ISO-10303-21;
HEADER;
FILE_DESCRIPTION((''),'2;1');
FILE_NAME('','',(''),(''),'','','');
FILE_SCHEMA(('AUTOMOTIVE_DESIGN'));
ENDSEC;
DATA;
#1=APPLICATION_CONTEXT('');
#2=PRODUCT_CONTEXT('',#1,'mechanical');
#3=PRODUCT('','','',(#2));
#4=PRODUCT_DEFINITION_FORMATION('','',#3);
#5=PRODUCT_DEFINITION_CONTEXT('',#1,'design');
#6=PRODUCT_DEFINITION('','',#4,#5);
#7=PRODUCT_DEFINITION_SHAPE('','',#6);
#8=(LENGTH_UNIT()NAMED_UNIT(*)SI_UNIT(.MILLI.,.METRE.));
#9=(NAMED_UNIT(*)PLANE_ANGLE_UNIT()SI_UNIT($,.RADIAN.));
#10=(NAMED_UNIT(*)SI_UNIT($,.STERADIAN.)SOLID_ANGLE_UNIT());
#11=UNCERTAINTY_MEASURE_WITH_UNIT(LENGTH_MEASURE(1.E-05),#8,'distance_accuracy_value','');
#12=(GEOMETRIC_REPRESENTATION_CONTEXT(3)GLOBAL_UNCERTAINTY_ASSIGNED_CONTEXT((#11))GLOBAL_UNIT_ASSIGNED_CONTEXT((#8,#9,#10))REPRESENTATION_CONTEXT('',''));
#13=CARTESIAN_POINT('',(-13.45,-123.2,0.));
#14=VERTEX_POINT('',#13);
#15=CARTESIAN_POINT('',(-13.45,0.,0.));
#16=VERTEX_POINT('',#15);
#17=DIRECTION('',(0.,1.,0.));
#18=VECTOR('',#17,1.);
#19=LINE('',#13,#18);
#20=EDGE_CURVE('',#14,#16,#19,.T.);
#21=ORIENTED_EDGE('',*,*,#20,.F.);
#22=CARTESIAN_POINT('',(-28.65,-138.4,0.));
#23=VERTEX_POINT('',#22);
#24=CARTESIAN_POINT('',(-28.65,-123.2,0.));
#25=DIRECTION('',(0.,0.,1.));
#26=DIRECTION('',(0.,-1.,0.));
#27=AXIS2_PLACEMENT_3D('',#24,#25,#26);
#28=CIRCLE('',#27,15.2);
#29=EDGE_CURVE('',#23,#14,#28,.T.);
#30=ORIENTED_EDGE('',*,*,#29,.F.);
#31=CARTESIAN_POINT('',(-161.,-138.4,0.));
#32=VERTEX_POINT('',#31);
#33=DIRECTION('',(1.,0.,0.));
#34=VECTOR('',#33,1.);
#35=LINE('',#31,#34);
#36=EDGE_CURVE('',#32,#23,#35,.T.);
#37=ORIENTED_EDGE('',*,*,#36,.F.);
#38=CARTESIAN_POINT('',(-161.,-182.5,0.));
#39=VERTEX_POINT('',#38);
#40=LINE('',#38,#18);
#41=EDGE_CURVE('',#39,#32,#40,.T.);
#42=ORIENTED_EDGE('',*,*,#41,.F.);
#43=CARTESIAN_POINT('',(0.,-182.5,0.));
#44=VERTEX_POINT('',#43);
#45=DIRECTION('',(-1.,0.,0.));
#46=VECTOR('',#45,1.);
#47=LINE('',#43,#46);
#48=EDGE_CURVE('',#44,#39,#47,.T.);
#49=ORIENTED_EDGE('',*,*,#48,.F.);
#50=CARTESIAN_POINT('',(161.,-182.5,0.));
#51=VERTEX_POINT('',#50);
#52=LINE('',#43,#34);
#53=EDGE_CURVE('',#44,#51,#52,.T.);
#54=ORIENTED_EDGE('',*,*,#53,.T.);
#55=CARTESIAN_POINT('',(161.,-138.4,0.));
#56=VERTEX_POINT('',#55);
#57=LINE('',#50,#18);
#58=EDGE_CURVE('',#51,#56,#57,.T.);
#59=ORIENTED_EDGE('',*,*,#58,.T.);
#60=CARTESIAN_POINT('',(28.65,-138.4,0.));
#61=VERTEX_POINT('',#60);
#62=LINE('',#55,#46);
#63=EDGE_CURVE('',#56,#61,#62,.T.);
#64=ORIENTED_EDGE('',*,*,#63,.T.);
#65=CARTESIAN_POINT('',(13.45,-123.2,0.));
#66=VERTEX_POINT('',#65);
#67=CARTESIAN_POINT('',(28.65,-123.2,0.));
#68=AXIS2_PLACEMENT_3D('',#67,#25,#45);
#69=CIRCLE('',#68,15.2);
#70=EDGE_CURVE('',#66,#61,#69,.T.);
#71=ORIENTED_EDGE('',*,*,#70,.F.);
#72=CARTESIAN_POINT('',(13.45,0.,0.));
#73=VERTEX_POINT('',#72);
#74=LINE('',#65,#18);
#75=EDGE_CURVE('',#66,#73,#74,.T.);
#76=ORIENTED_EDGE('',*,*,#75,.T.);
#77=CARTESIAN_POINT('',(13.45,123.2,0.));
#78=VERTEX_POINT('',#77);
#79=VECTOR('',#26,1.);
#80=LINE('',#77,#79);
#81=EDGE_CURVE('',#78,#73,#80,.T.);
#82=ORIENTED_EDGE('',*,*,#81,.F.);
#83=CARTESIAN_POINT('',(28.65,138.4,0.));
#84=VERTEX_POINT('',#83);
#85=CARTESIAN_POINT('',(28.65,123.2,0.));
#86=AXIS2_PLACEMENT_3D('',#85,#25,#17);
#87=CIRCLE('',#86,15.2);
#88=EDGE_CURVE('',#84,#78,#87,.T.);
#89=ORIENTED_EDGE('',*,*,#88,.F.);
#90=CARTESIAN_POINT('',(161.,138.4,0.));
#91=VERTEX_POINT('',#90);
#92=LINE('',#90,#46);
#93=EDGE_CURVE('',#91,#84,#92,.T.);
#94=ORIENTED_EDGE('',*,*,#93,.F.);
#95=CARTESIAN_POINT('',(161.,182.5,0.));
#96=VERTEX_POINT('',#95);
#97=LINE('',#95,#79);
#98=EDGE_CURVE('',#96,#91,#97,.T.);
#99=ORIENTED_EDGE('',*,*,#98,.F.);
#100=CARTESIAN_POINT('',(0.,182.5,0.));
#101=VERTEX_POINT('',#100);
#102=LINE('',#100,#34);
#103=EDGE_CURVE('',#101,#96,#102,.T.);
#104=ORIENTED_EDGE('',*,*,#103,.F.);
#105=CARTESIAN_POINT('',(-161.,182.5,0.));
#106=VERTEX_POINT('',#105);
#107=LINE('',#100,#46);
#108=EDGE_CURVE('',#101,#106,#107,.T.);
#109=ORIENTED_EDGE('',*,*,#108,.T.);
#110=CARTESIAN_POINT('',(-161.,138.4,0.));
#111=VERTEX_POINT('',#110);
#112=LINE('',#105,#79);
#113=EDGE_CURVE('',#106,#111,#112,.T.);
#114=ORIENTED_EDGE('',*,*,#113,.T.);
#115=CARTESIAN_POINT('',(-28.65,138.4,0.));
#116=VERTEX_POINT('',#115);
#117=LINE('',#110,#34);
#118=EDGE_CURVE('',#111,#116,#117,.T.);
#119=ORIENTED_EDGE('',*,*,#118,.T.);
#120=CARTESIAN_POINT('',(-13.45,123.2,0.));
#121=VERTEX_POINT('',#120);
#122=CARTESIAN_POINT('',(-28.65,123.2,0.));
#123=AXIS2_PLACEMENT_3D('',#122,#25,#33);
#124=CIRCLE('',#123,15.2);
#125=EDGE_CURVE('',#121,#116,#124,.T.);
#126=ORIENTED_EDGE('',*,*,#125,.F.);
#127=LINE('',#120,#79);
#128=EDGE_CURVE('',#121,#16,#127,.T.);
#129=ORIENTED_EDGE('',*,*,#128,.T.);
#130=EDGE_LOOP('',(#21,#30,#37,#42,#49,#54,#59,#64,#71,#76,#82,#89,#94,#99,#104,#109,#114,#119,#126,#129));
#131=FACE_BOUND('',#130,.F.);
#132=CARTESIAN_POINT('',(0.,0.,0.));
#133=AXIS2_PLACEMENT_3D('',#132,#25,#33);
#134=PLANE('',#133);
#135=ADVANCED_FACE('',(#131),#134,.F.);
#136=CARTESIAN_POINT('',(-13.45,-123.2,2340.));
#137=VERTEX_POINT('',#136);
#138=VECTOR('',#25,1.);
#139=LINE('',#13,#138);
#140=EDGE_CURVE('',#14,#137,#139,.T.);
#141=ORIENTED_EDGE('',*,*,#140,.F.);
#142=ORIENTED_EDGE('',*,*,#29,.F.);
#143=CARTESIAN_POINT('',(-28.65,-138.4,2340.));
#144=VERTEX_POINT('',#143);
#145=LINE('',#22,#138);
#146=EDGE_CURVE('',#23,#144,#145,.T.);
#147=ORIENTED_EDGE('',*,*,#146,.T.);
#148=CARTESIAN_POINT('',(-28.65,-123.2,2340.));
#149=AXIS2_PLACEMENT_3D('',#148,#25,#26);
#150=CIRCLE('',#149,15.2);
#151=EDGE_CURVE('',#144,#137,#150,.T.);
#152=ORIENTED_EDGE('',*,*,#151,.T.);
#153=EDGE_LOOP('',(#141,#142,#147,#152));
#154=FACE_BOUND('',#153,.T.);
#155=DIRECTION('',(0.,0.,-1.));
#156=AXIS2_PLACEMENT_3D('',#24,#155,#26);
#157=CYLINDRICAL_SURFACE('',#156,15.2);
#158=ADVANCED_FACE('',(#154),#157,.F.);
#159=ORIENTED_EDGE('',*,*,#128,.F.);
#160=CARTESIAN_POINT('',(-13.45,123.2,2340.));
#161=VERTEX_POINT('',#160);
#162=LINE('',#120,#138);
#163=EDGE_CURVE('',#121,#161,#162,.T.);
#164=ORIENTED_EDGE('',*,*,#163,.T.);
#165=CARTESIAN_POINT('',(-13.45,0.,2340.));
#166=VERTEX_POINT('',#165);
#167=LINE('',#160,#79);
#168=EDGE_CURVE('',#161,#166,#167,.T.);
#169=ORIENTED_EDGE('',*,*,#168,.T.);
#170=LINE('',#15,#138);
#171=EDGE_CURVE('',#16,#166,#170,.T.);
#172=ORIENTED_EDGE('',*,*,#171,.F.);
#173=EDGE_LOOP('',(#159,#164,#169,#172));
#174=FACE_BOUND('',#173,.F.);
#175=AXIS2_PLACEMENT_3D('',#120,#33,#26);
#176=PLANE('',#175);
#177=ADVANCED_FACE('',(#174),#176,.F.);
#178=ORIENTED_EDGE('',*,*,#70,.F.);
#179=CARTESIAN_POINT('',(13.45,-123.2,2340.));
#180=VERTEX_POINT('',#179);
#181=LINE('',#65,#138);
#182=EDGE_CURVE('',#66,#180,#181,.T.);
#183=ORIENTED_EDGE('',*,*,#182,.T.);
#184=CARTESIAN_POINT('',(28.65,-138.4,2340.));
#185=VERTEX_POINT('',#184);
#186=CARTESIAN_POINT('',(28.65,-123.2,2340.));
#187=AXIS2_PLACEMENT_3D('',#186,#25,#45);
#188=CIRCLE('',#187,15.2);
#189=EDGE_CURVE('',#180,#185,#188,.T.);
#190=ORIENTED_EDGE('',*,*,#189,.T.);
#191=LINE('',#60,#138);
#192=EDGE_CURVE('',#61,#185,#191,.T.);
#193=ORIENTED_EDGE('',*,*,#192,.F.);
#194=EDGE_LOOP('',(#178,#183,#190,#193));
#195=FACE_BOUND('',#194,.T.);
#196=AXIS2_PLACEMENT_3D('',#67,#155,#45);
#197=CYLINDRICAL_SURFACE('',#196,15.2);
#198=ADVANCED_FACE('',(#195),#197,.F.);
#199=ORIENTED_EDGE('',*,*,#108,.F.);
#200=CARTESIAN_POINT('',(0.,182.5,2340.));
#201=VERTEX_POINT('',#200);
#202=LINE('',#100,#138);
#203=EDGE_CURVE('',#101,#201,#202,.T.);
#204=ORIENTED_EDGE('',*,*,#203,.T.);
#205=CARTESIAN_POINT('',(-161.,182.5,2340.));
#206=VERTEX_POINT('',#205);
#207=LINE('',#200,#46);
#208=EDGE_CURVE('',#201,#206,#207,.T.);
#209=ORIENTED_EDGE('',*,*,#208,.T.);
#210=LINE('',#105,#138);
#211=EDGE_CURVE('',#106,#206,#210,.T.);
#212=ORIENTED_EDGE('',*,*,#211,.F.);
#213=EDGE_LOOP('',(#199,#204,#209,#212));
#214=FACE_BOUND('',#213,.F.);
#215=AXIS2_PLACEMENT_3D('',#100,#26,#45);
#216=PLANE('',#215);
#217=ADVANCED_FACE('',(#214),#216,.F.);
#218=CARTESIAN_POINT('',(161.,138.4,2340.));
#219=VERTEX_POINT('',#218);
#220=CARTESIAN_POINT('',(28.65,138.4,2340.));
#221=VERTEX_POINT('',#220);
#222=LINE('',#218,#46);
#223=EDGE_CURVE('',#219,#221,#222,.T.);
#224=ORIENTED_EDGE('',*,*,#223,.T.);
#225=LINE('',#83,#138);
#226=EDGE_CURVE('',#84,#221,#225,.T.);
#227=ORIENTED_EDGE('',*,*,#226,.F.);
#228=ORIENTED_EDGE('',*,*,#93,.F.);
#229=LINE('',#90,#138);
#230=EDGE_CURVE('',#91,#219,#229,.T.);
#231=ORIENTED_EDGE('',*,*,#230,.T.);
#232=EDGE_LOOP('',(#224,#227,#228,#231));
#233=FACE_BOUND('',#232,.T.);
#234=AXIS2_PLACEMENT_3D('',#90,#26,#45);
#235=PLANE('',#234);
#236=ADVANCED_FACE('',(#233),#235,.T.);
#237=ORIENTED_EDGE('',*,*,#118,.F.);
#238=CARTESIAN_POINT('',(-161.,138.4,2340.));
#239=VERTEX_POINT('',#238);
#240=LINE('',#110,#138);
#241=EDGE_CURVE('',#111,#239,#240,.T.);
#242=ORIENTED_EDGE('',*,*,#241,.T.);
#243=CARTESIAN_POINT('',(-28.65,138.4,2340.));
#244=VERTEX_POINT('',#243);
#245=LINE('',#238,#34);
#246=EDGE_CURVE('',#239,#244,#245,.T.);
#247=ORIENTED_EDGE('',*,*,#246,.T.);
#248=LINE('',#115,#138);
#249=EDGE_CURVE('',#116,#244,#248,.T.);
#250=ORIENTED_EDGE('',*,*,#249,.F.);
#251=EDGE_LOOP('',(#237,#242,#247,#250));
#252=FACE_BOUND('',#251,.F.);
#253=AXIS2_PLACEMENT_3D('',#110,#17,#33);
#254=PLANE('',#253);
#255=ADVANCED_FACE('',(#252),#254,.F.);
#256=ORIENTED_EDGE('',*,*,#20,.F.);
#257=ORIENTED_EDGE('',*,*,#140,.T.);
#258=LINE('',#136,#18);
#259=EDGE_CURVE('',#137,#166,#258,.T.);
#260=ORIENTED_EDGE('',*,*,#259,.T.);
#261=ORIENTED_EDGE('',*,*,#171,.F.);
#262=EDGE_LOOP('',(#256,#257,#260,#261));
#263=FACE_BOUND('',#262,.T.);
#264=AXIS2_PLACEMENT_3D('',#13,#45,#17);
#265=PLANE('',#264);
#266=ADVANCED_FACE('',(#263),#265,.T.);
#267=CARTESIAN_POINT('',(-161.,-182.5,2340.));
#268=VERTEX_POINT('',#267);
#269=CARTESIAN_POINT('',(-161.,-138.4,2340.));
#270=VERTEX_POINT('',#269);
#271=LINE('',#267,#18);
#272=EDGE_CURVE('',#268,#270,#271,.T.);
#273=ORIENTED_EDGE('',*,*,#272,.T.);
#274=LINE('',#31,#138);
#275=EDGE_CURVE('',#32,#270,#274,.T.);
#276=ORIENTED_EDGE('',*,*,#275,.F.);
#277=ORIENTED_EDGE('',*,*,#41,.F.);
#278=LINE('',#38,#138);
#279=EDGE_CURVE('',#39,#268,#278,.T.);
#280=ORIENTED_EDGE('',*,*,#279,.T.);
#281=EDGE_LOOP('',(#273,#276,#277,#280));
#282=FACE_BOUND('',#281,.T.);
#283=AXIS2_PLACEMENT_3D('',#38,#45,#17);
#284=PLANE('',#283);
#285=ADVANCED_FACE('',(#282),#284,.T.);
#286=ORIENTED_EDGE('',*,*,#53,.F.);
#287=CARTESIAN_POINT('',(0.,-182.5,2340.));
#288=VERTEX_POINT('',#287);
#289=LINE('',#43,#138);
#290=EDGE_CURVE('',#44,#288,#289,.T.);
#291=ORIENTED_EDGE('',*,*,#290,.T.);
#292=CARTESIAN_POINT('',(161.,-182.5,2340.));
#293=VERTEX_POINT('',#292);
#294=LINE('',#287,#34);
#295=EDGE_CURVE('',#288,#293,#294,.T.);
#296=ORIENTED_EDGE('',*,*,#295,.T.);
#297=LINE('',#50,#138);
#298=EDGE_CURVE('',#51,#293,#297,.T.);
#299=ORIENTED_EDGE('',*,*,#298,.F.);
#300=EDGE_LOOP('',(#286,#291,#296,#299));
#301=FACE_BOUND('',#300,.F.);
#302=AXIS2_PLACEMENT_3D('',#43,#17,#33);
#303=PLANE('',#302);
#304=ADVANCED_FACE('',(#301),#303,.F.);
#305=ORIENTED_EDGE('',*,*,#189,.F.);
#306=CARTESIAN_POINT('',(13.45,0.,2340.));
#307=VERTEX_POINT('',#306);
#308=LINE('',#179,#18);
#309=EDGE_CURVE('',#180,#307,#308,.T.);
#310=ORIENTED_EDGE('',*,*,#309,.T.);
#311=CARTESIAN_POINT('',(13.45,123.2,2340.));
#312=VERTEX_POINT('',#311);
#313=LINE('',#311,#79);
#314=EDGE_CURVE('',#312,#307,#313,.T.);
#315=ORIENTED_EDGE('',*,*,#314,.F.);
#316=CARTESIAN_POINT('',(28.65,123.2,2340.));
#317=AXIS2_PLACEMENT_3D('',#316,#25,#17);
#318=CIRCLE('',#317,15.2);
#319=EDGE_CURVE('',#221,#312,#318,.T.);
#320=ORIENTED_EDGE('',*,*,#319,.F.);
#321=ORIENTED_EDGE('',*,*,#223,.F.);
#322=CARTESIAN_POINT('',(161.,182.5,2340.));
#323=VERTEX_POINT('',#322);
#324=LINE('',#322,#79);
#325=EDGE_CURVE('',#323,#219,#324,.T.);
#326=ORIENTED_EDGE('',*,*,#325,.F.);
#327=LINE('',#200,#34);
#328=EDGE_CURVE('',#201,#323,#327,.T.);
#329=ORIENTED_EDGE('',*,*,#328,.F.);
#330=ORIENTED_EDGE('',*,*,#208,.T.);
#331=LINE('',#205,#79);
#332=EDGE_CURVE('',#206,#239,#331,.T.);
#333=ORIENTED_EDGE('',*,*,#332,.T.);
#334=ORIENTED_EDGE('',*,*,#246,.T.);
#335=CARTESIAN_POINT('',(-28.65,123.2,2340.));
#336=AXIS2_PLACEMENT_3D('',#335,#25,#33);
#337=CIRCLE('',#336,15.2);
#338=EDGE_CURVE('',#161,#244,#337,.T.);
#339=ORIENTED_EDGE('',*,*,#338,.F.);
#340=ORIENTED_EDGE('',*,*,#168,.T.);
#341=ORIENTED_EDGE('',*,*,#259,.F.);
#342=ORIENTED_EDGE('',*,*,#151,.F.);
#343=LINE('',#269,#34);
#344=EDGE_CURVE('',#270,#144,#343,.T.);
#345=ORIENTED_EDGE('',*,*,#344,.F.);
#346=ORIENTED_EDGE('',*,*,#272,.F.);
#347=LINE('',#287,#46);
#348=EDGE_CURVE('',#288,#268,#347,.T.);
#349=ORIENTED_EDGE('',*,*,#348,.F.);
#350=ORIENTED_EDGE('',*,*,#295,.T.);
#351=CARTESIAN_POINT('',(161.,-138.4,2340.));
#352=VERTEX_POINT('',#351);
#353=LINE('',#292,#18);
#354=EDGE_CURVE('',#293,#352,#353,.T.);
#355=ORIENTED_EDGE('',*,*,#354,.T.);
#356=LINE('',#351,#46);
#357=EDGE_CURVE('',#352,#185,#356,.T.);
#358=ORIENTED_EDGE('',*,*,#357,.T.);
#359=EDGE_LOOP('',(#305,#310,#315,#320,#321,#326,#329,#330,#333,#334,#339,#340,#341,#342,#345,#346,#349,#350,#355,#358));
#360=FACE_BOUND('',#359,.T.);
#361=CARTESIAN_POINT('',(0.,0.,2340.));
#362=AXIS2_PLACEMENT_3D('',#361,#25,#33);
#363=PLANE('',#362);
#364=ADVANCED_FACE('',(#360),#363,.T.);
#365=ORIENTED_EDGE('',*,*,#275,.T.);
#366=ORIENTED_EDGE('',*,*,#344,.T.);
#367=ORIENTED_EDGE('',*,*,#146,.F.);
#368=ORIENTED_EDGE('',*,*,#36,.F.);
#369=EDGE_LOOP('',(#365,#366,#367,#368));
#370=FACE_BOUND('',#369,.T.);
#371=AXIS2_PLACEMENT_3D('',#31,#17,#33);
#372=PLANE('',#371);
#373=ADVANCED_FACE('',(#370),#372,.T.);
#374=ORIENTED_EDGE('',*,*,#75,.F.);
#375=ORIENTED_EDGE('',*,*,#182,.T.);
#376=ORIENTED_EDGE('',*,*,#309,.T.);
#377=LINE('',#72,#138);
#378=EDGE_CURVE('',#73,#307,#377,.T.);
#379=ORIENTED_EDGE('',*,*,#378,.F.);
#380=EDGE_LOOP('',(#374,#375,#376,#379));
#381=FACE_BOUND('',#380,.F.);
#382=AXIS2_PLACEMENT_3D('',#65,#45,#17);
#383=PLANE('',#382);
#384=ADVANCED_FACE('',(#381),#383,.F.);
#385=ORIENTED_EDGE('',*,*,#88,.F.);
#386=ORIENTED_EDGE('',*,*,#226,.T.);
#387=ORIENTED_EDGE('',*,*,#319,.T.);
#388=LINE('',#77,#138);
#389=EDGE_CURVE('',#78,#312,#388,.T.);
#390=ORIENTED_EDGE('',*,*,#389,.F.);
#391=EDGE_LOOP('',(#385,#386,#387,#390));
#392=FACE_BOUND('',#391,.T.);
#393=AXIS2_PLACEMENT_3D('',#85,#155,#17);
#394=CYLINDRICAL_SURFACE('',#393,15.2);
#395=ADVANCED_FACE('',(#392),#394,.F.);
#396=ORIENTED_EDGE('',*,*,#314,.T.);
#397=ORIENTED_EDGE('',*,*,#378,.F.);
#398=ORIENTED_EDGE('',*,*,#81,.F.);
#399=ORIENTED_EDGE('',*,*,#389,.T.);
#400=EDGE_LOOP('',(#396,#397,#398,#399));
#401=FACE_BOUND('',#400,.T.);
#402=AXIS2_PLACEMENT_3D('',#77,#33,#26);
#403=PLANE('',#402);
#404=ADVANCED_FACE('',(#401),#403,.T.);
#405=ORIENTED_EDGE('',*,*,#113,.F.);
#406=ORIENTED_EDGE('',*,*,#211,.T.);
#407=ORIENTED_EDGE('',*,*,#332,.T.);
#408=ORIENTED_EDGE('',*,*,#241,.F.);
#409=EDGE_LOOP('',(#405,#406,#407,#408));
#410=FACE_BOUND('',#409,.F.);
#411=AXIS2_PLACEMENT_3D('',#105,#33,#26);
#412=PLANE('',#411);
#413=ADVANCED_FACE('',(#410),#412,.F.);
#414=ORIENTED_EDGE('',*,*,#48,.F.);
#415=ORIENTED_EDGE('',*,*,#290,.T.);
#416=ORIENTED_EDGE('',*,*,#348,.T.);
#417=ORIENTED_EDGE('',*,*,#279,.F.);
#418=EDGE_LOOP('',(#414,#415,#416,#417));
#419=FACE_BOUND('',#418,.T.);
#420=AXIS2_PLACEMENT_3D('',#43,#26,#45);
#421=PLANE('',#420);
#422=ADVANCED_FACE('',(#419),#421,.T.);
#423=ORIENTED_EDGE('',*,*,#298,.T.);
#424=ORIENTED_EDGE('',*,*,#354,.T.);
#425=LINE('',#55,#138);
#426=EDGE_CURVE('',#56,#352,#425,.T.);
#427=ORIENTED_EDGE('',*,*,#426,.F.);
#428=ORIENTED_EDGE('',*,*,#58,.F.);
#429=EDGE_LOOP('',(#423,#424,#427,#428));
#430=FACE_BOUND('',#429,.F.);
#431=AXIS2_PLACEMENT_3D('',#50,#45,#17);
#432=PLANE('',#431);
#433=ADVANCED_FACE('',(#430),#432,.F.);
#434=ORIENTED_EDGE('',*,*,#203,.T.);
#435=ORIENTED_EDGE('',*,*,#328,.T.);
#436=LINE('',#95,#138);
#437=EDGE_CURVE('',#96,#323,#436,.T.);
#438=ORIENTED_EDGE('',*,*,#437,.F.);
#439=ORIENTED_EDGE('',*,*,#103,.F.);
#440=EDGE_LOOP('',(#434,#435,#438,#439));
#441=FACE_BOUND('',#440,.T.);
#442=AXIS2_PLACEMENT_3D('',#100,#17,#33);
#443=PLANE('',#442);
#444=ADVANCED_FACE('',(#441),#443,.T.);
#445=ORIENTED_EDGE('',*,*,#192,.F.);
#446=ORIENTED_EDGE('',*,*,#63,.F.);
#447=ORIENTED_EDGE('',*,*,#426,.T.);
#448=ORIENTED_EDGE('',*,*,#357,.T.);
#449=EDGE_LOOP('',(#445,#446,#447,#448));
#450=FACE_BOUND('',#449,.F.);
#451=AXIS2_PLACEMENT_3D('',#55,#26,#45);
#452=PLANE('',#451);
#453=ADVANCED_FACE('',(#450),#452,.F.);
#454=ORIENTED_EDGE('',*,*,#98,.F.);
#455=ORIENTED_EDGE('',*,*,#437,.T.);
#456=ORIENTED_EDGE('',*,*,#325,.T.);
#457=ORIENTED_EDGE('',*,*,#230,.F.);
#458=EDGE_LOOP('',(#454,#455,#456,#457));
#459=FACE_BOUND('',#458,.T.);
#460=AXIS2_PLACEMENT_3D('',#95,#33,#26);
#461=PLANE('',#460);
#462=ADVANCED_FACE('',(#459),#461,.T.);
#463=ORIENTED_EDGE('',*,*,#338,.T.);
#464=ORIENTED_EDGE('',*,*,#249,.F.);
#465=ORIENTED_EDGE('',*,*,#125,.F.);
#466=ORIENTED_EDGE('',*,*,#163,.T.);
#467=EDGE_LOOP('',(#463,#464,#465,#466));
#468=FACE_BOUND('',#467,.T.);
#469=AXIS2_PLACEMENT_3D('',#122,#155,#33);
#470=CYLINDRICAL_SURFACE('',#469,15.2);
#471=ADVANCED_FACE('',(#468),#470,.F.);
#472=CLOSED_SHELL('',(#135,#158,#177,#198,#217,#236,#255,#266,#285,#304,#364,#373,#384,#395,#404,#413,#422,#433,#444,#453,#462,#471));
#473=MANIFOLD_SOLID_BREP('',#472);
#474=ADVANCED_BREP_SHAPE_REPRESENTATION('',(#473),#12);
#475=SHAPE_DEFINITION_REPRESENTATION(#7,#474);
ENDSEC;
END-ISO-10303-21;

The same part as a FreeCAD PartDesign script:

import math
import FreeCAD as App
import Part
import Sketcher

V = App.Vector
Q = App.Units.Quantity

doc = App.newDocument("Part")
params = doc.addObject("Spreadsheet::Sheet", "Params")
for row, (alias, value) in enumerate([
    ("sketch1_radius", "15.2 mm"),
    ("sketch1_height", "44.1 mm"),
    ("pad1_length", "2340 mm"),
], start=1):
    params.set(f"A{row}", alias)
    params.set(f"B{row}", "=" + value)
    params.setAlias(f"B{row}", alias)

body = doc.addObject("PartDesign::Body", "Body")

# Sketch on XY plane
sketch1 = body.newObject("Sketcher::SketchObject", "Sketch")
sketch1.AttachmentSupport = (doc.getObject("XY_Plane"), [""])
sketch1.MapMode = "FlatFace"
sketch1.addGeometry([
    Part.LineSegment(V(-161, -138, 0), V(-161, -182, 0)),  # 0
    Part.LineSegment(V(-161, -182, 0), V(161, -182, 0)),  # 1
    Part.LineSegment(V(161, -182, 0), V(161, -138, 0)),  # 2
    Part.LineSegment(V(161, -138, 0), V(29, -138, 0)),  # 3
    Part.ArcOfCircle(Part.Circle(V(29, -123, 0), V(0, 0, 1), 15), math.radians(180), math.radians(270)),  # 4
    Part.LineSegment(V(13, -123, 0), V(13, 123, 0)),  # 5
    Part.ArcOfCircle(Part.Circle(V(29, 123, 0), V(0, 0, 1), 15), math.radians(90), math.radians(180)),  # 6
    Part.LineSegment(V(29, 138, 0), V(161, 138, 0)),  # 7
    Part.LineSegment(V(161, 138, 0), V(161, 182, 0)),  # 8
    Part.LineSegment(V(161, 182, 0), V(-161, 182, 0)),  # 9
    Part.LineSegment(V(-161, 182, 0), V(-161, 138, 0)),  # 10
    Part.LineSegment(V(-161, 138, 0), V(-29, 138, 0)),  # 11
    Part.ArcOfCircle(Part.Circle(V(-29, 123, 0), V(0, 0, 1), 15), math.radians(0), math.radians(90)),  # 12
    Part.LineSegment(V(-13, 123, 0), V(-13, -123, 0)),  # 13
    Part.ArcOfCircle(Part.Circle(V(-29, -123, 0), V(0, 0, 1), 15), math.radians(-90), math.radians(0)),  # 14
    Part.LineSegment(V(-29, -138, 0), V(-161, -138, 0)),  # 15
], False)
sketch1.addConstraint([
    Sketcher.Constraint("Coincident", 0, 2, 1, 1),
    Sketcher.Constraint("Coincident", 1, 2, 2, 1),
    Sketcher.Constraint("Coincident", 2, 2, 3, 1),
    Sketcher.Constraint("Tangent", 3, 2, 4, 2),
    Sketcher.Constraint("Tangent", 4, 1, 5, 1),
    Sketcher.Constraint("Tangent", 5, 2, 6, 2),
    Sketcher.Constraint("Tangent", 6, 1, 7, 1),
    Sketcher.Constraint("Coincident", 7, 2, 8, 1),
    Sketcher.Constraint("Coincident", 8, 2, 9, 1),
    Sketcher.Constraint("Coincident", 9, 2, 10, 1),
    Sketcher.Constraint("Coincident", 10, 2, 11, 1),
    Sketcher.Constraint("Tangent", 11, 2, 12, 2),
    Sketcher.Constraint("Tangent", 12, 1, 13, 1),
    Sketcher.Constraint("Tangent", 13, 2, 14, 2),
    Sketcher.Constraint("Tangent", 14, 1, 15, 1),
    Sketcher.Constraint("Coincident", 15, 2, 0, 1),
    Sketcher.Constraint("Vertical", 0),
    Sketcher.Constraint("Horizontal", 1),
    Sketcher.Constraint("Vertical", 2),
    Sketcher.Constraint("Horizontal", 3),
    Sketcher.Constraint("Vertical", 5),
    Sketcher.Constraint("Horizontal", 7),
    Sketcher.Constraint("Vertical", 8),
    Sketcher.Constraint("Horizontal", 9),
    Sketcher.Constraint("Vertical", 10),
    Sketcher.Constraint("Horizontal", 11),
    Sketcher.Constraint("Vertical", 13),
    Sketcher.Constraint("Horizontal", 15),
    Sketcher.Constraint("Equal", 4, 6),
    Sketcher.Constraint("Equal", 6, 12),
    Sketcher.Constraint("Equal", 12, 14),
    Sketcher.Constraint("Symmetric", 4, 3, 12, 3, -1, 1),
    Sketcher.Constraint("Symmetric", 0, 2, 8, 2, -1, 1),
    Sketcher.Constraint("Symmetric", 7, 2, 10, 2, -2),
    Sketcher.Constraint("Symmetric", 2, 2, 15, 2, -2),
    Sketcher.Constraint("Radius", 4, Q("15.2 mm")),
    Sketcher.Constraint("DistanceY", 0, 2, 0, 1, Q("44.1 mm")),
    Sketcher.Constraint("DistanceX", 0, 2, -1, 1, Q("161 mm")),
    Sketcher.Constraint("DistanceY", 0, 2, -1, 1, Q("182.5 mm")),
    Sketcher.Constraint("DistanceX", -1, 1, 4, 1, Q("13.45 mm")),
])
sketch1.setExpression("Constraints[35]", "Params.sketch1_radius")
sketch1.setExpression("Constraints[36]", "Params.sketch1_height")
pad1 = body.newObject("PartDesign::Pad", "Pad")
pad1.Profile = sketch1
pad1.setExpression("Length", "Params.pad1_length")

doc.recompute()
